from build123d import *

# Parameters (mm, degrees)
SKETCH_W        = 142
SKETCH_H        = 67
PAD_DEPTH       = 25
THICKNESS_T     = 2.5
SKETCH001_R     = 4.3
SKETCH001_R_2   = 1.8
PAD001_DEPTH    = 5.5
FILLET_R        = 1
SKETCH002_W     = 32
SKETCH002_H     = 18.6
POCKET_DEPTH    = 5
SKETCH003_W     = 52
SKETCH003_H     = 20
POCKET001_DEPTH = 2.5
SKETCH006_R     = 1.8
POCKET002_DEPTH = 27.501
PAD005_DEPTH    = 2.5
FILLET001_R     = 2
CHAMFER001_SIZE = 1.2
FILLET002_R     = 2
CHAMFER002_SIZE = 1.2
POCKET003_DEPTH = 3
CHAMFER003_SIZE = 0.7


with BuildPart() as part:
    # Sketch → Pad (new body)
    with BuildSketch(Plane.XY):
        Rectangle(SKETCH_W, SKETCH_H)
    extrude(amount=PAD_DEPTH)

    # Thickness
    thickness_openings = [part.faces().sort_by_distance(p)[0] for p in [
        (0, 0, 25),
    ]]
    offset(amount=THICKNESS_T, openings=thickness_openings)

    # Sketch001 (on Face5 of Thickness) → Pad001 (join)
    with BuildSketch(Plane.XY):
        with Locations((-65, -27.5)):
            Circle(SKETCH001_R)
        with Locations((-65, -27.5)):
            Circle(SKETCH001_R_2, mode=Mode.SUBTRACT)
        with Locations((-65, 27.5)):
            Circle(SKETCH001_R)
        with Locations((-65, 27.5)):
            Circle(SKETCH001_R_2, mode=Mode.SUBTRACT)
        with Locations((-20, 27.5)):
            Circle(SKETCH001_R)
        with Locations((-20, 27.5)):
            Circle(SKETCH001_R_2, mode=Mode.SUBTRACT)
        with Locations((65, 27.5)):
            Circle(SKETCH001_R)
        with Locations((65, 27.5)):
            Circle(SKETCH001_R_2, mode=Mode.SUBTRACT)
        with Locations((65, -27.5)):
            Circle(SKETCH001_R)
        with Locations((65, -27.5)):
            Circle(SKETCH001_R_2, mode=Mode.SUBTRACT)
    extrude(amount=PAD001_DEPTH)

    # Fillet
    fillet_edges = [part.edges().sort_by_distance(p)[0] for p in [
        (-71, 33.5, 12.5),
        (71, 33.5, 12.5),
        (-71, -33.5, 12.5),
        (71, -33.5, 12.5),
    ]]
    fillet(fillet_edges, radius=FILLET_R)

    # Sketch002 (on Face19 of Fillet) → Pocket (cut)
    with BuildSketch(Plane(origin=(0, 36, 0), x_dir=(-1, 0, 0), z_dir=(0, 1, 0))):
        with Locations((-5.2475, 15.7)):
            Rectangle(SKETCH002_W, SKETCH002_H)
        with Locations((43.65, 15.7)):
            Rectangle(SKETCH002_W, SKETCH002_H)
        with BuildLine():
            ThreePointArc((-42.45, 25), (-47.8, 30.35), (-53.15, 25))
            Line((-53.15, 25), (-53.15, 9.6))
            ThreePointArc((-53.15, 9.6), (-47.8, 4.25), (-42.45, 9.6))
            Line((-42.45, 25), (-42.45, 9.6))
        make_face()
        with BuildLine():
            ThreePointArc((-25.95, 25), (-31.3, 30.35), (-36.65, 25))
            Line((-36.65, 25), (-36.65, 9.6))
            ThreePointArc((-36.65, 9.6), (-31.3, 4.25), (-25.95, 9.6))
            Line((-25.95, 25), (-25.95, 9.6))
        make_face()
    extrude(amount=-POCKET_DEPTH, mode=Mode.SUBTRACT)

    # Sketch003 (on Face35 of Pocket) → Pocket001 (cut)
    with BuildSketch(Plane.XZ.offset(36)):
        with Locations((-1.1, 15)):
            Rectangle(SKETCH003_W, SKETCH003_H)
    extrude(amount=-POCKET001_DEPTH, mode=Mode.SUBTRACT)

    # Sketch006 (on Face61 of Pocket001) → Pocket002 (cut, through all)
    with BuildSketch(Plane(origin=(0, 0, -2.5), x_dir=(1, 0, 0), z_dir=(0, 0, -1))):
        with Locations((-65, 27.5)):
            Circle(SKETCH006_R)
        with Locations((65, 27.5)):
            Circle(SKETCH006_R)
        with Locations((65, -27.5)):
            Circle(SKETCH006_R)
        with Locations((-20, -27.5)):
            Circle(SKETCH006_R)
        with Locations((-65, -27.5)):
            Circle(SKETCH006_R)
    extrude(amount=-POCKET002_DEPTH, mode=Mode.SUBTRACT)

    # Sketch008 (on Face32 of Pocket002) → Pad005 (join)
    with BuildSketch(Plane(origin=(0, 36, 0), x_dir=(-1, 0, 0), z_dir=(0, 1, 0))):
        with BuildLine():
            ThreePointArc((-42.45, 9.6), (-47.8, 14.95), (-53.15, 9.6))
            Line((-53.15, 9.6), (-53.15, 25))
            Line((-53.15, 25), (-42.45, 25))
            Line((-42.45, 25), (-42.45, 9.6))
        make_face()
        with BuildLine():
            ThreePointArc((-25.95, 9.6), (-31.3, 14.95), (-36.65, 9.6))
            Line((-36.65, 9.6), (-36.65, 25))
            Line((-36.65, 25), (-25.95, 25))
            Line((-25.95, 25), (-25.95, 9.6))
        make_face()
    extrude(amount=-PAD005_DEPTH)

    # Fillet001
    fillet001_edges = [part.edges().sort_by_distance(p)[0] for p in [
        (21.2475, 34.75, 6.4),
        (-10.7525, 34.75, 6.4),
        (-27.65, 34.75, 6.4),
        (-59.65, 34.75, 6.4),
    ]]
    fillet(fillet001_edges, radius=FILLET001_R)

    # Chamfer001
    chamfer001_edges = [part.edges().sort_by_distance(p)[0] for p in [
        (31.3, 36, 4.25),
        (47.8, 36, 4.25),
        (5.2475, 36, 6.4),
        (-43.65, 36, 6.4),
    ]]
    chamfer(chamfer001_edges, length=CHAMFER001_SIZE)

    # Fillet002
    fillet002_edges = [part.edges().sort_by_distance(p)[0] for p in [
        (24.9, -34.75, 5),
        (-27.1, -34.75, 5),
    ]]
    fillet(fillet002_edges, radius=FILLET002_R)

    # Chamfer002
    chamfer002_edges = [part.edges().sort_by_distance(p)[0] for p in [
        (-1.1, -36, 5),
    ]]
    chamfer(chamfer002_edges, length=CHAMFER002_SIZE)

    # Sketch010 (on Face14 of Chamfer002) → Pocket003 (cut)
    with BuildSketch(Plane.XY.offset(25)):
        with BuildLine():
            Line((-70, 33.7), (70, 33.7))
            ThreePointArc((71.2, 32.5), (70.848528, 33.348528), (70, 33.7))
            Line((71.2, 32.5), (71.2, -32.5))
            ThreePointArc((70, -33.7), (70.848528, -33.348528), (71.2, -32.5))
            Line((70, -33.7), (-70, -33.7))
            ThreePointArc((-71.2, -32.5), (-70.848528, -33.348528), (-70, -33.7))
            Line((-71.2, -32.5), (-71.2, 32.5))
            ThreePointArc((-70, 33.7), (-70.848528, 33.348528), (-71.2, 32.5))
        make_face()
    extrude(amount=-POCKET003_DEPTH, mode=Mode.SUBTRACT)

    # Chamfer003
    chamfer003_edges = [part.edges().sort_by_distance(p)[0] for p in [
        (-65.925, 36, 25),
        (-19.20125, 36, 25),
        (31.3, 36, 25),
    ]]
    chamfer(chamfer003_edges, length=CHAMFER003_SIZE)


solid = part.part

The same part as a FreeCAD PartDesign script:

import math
import FreeCAD as App
import Part
import Sketcher

V = App.Vector
Q = App.Units.Quantity


def edges_at(feature, points):
    """Names of the edges that pass closest to the given points."""
    edges = feature.Shape.Edges
    near = lambda p: min(range(len(edges)), key=lambda i: edges[i].distToShape(Part.Vertex(*p))[0])
    return sorted({f"Edge{near(p) + 1}" for p in points})


def faces_at(feature, points):
    """Names of the faces that lie closest to the given points."""
    faces = feature.Shape.Faces
    near = lambda p: min(range(len(faces)), key=lambda i: faces[i].distToShape(Part.Vertex(*p))[0])
    return sorted({f"Face{near(p) + 1}" for p in points})


def add_polygon(sketch, points):
    """Adds a closed chain of lines whose ends are joined by coincident constraints."""
    first, n = sketch.GeometryCount, len(points)
    for a, b in zip(points, points[1:] + points[:1]):
        sketch.addGeometry(Part.LineSegment(App.Vector(*a, 0), App.Vector(*b, 0)), False)
    for i in range(n):
        sketch.addConstraint(Sketcher.Constraint("Coincident", first + i, 2, first + (i + 1) % n, 1))

doc = App.newDocument("Part")
body = doc.addObject("PartDesign::Body", "Body")

sketch1 = doc.addObject("Sketcher::SketchObject", "Sketch")
body.addObject(sketch1)
sketch1.AttachmentSupport = (doc.XY_Plane, [""])
sketch1.MapMode = "FlatFace"
add_polygon(sketch1, [(-71, 34), (-71, -34), (71, -34), (71, 34)])
sketch1.addConstraint(Sketcher.Constraint("Vertical", 0))
sketch1.addConstraint(Sketcher.Constraint("Horizontal", 1))
sketch1.addConstraint(Sketcher.Constraint("Vertical", 2))
sketch1.addConstraint(Sketcher.Constraint("Horizontal", 3))
sketch1.addConstraint(Sketcher.Constraint("Symmetric", 0, 2, 2, 2, -1, 1))
sketch1.addConstraint(Sketcher.Constraint("DistanceX", 1, 1, 1, 2, Q("142 mm")))
sketch1.addConstraint(Sketcher.Constraint("DistanceY", 0, 2, 0, 1, Q("67 mm")))
pad1 = doc.addObject("PartDesign::Pad", "Pad")
body.addObject(pad1)
pad1.Profile = sketch1
pad1.Length = 25
doc.recompute()

thickness = doc.addObject("PartDesign::Thickness", "Thickness")
body.addObject(thickness)
thickness.Base = (pad1, faces_at(pad1, [(0, 0, 25)]))
thickness.Value = 2.5
thickness.Reversed = False
thickness.Join = "Arc"

sketch2 = doc.addObject("Sketcher::SketchObject", "Sketch001")
body.addObject(sketch2)
sketch2.AttachmentSupport = (doc.XY_Plane, [""])
sketch2.MapMode = "FlatFace"
sketch2.addGeometry(Part.Circle(V(-65, -27.5, 0), V(0, 0, 1), 4.3), False)
sketch2.addGeometry(Part.Circle(V(-65, -27.5, 0), V(0, 0, 1), 1.8), False)
sketch2.addGeometry(Part.Circle(V(-65, 27.5, 0), V(0, 0, 1), 4.3), False)
sketch2.addGeometry(Part.Circle(V(-65, 27.5, 0), V(0, 0, 1), 1.8), False)
sketch2.addGeometry(Part.Circle(V(-20, 27.5, 0), V(0, 0, 1), 4.3), False)
sketch2.addGeometry(Part.Circle(V(-20, 27.5, 0), V(0, 0, 1), 1.8), False)
sketch2.addGeometry(Part.Circle(V(65, 27.5, 0), V(0, 0, 1), 4.3), False)
sketch2.addGeometry(Part.Circle(V(65, 27.5, 0), V(0, 0, 1), 1.8), False)
sketch2.addGeometry(Part.Circle(V(65, -27.5, 0), V(0, 0, 1), 4.3), False)
sketch2.addGeometry(Part.Circle(V(65, -27.5, 0), V(0, 0, 1), 1.8), False)
sketch2.addConstraint(Sketcher.Constraint("Coincident", 1, 3, 0, 3))
sketch2.addConstraint(Sketcher.Constraint("Coincident", 3, 3, 2, 3))
sketch2.addConstraint(Sketcher.Constraint("Coincident", 5, 3, 4, 3))
sketch2.addConstraint(Sketcher.Constraint("Coincident", 7, 3, 6, 3))
sketch2.addConstraint(Sketcher.Constraint("Coincident", 9, 3, 8, 3))
sketch2.addConstraint(Sketcher.Constraint("Equal", 0, 2))
sketch2.addConstraint(Sketcher.Constraint("Equal", 1, 3))
sketch2.addConstraint(Sketcher.Constraint("Equal", 2, 4))
sketch2.addConstraint(Sketcher.Constraint("Equal", 3, 5))
sketch2.addConstraint(Sketcher.Constraint("Equal", 4, 6))
sketch2.addConstraint(Sketcher.Constraint("Equal", 5, 7))
sketch2.addConstraint(Sketcher.Constraint("Equal", 6, 8))
sketch2.addConstraint(Sketcher.Constraint("Equal", 7, 9))
sketch2.addConstraint(Sketcher.Constraint("Symmetric", 0, 3, 6, 3, -1, 1))
sketch2.addConstraint(Sketcher.Constraint("Symmetric", 2, 3, 8, 3, -1, 1))
sketch2.addConstraint(Sketcher.Constraint("Symmetric", 2, 3, 6, 3, -2))
sketch2.addConstraint(Sketcher.Constraint("Horizontal", 3, 3, 4, 3))
sketch2.addConstraint(Sketcher.Constraint("Diameter", 0, Q("8.6 mm")))
sketch2.addConstraint(Sketcher.Constraint("Diameter", 1, Q("3.6 mm")))
sketch2.addConstraint(Sketcher.Constraint("DistanceX", 0, 3, -1, 1, Q("65 mm")))
sketch2.addConstraint(Sketcher.Constraint("DistanceX", 4, 3, -1, 1, Q("20 mm")))
sketch2.addConstraint(Sketcher.Constraint("DistanceY", 0, 3, 2, 3, Q("55 mm")))
pad2 = doc.addObject("PartDesign::Pad", "Pad001")
body.addObject(pad2)
pad2.Profile = sketch2
pad2.Length = 5.5
doc.recompute()

fillet = doc.addObject("PartDesign::Fillet", "Fillet")
body.addObject(fillet)
fillet.Base = (pad2, edges_at(pad2, [
    (-71, 33.5, 12.5),
    (71, 33.5, 12.5),
    (-71, -33.5, 12.5),
    (71, -33.5, 12.5),
]))
fillet.Radius = 1

sketch3 = doc.addObject("Sketcher::SketchObject", "Sketch002")
body.addObject(sketch3)
sketch3.AttachmentSupport = (doc.XZ_Plane, [""])
sketch3.MapMode = "FlatFace"
sketch3.AttachmentOffset = App.Placement(V(0, 0, -36), App.Rotation())
add_polygon(sketch3, [(21, 25), (21, 6), (-11, 6), (-11, 25)])
add_polygon(sketch3, [(-28, 25), (-28, 6), (-60, 6), (-60, 25)])
sketch3.addGeometry(Part.ArcOfCircle(Part.Circle(V(48, 25, 0), V(0, 0, 1), 5), math.radians(0), math.radians(180)), False)
sketch3.addGeometry(Part.LineSegment(V(53, 25, 0), V(53, 10, 0)), False)
sketch3.addGeometry(Part.ArcOfCircle(Part.Circle(V(48, 10, 0), V(0, 0, 1), 5), math.radians(180), math.radians(360)), False)
sketch3.addGeometry(Part.LineSegment(V(42, 10, 0), V(42, 25, 0)), False)
sketch3.addGeometry(Part.ArcOfCircle(Part.Circle(V(31, 25, 0), V(0, 0, 1), 5), math.radians(0), math.radians(180)), False)
sketch3.addGeometry(Part.LineSegment(V(37, 25, 0), V(37, 10, 0)), False)
sketch3.addGeometry(Part.ArcOfCircle(Part.Circle(V(31, 10, 0), V(0, 0, 1), 5), math.radians(180), math.radians(360)), False)
sketch3.addGeometry(Part.LineSegment(V(26, 10, 0), V(26, 25, 0)), False)
sketch3.addConstraint(Sketcher.Constraint("Tangent", 8, 1, 9, 1))
sketch3.addConstraint(Sketcher.Constraint("Tangent", 9, 2, 10, 2))
sketch3.addConstraint(Sketcher.Constraint("Tangent", 10, 1, 11, 1))
sketch3.addConstraint(Sketcher.Constraint("Tangent", 11, 2, 8, 2))
sketch3.addConstraint(Sketcher.Constraint("Tangent", 12, 1, 13, 1))
sketch3.addConstraint(Sketcher.Constraint("Tangent", 13, 2, 14, 2))
sketch3.addConstraint(Sketcher.Constraint("Tangent", 14, 1, 15, 1))
sketch3.addConstraint(Sketcher.Constraint("Tangent", 15, 2, 12, 2))
sketch3.addConstraint(Sketcher.Constraint("Vertical", 0))
sketch3.addConstraint(Sketcher.Constraint("Horizontal", 1))
sketch3.addConstraint(Sketcher.Constraint("Vertical", 2))
sketch3.addConstraint(Sketcher.Constraint("Horizontal", 3))
sketch3.addConstraint(Sketcher.Constraint("Vertical", 4))
sketch3.addConstraint(Sketcher.Constraint("Horizontal", 5))
sketch3.addConstraint(Sketcher.Constraint("Vertical", 6))
sketch3.addConstraint(Sketcher.Constraint("Horizontal", 7))
sketch3.addConstraint(Sketcher.Constraint("Vertical", 9))
sketch3.addConstraint(Sketcher.Constraint("Vertical", 11))
sketch3.addConstraint(Sketcher.Constraint("Vertical", 13))
sketch3.addConstraint(Sketcher.Constraint("Vertical", 15))
sketch3.addConstraint(Sketcher.Constraint("Equal", 10, 12))
sketch3.addConstraint(Sketcher.Constraint("Horizontal", 8, 3, 12, 3))
sketch3.addConstraint(Sketcher.Constraint("Horizontal", 10, 3, 14, 3))
sketch3.addConstraint(Sketcher.Constraint("Horizontal", 12, 3, 2, 2))
sketch3.addConstraint(Sketcher.Constraint("Horizontal", 1, 2, 4, 2))
sketch3.addConstraint(Sketcher.Constraint("Horizontal", 3, 2, 6, 2))
sketch3.addConstraint(Sketcher.Constraint("Equal", 3, 5))
sketch3.addConstraint(Sketcher.Constraint("DistanceX", 1, 2, 1, 1, Q("32 mm")))
sketch3.addConstraint(Sketcher.Constraint("Radius", 8, Q("5.35 mm")))
sketch3.addConstraint(Sketcher.Constraint("DistanceY", 0, 2, 0, 1, Q("18.6 mm")))
sketch3.addConstraint(Sketcher.Constraint("DistanceY", 9, 2, 9, 1, Q("15.4 mm")))
sketch3.addConstraint(Sketcher.Constraint("DistanceY", -1, 1, 8, 3, Q("25 mm")))
sketch3.addConstraint(Sketcher.Constraint("DistanceX", -1, 1, 8, 3, Q("47.8 mm")))
sketch3.addConstraint(Sketcher.Constraint("DistanceX", -1, 1, 12, 3, Q("31.3 mm")))
sketch3.addConstraint(Sketcher.Constraint("DistanceX", 4, 2, -1, 1, Q("27.65 mm")))
sketch3.addConstraint(Sketcher.Constraint("DistanceX", -1, 1, 0, 2, Q("21.2475 mm")))
pocket1 = doc.addObject("PartDesign::Pocket", "Pocket")
body.addObject(pocket1)
pocket1.Profile = sketch3
pocket1.Length = 5
pocket1.Reversed = True

sketch4 = doc.addObject("Sketcher::SketchObject", "Sketch003")
body.addObject(sketch4)
sketch4.AttachmentSupport = (doc.XZ_Plane, [""])
sketch4.MapMode = "FlatFace"
sketch4.AttachmentOffset = App.Placement(V(0, 0, 36), App.Rotation())
add_polygon(sketch4, [(-27, 25), (-27, 5), (25, 5), (25, 25)])
sketch4.addConstraint(Sketcher.Constraint("Vertical", 0))
sketch4.addConstraint(Sketcher.Constraint("Horizontal", 1))
sketch4.addConstraint(Sketcher.Constraint("Vertical", 2))
sketch4.addConstraint(Sketcher.Constraint("Horizontal", 3))
sketch4.addConstraint(Sketcher.Constraint("DistanceX", 1, 1, 1, 2, Q("52 mm")))
sketch4.addConstraint(Sketcher.Constraint("DistanceY", 0, 2, 0, 1, Q("20 mm")))
sketch4.addConstraint(Sketcher.Constraint("DistanceY", -1, 1, 0, 2, Q("5 mm")))
sketch4.addConstraint(Sketcher.Constraint("DistanceX", 0, 2, -1, 1, Q("27.1 mm")))
pocket2 = doc.addObject("PartDesign::Pocket", "Pocket001")
body.addObject(pocket2)
pocket2.Profile = sketch4
pocket2.Length = 2.5

sketch5 = doc.addObject("Sketcher::SketchObject", "Sketch004")
body.addObject(sketch5)
sketch5.AttachmentSupport = (doc.XY_Plane, [""])
sketch5.MapMode = "FlatFace"
sketch5.AttachmentOffset = App.Placement(V(0, 0, -2.5), App.Rotation())
sketch5.addGeometry(Part.Circle(V(-65, -27.5, 0), V(0, 0, 1), 1.8), False)
sketch5.addGeometry(Part.Circle(V(65, -27.5, 0), V(0, 0, 1), 1.8), False)
sketch5.addGeometry(Part.Circle(V(65, 27.5, 0), V(0, 0, 1), 1.8), False)
sketch5.addGeometry(Part.Circle(V(-20, 27.5, 0), V(0, 0, 1), 1.8), False)
sketch5.addGeometry(Part.Circle(V(-65, 27.5, 0), V(0, 0, 1), 1.8), False)
sketch5.addConstraint(Sketcher.Constraint("Equal", 0, 1))
sketch5.addConstraint(Sketcher.Constraint("Equal", 1, 2))
sketch5.addConstraint(Sketcher.Constraint("Equal", 2, 3))
sketch5.addConstraint(Sketcher.Constraint("Equal", 3, 4))
sketch5.addConstraint(Sketcher.Constraint("Symmetric", 0, 3, 2, 3, -1, 1))
sketch5.addConstraint(Sketcher.Constraint("Symmetric", 1, 3, 4, 3, -1, 1))
sketch5.addConstraint(Sketcher.Constraint("Symmetric", 0, 3, 1, 3, -2))
sketch5.addConstraint(Sketcher.Constraint("Horizontal", 2, 3, 3, 3))
sketch5.addConstraint(Sketcher.Constraint("Diameter", 0, Q("3.6 mm")))
sketch5.addConstraint(Sketcher.Constraint("DistanceX", 0, 3, -1, 1, Q("65 mm")))
sketch5.addConstraint(Sketcher.Constraint("DistanceX", 3, 3, -1, 1, Q("20 mm")))
sketch5.addConstraint(Sketcher.Constraint("DistanceY", 1, 3, 2, 3, Q("55 mm")))
pocket3 = doc.addObject("PartDesign::Pocket", "Pocket002")
body.addObject(pocket3)
pocket3.Profile = sketch5
pocket3.Type = "ThroughAll"
pocket3.Reversed = True

sketch6 = doc.addObject("Sketcher::SketchObject", "Sketch005")
body.addObject(sketch6)
sketch6.AttachmentSupport = (doc.XZ_Plane, [""])
sketch6.MapMode = "FlatFace"
sketch6.AttachmentOffset = App.Placement(V(0, 0, -36), App.Rotation())
sketch6.addGeometry(Part.ArcOfCircle(Part.Circle(V(48, 10, 0), V(0, 0, 1), 5), math.radians(0), math.radians(180)), False)
sketch6.addGeometry(Part.LineSegment(V(42, 10, 0), V(42, 25, 0)), False)
sketch6.addGeometry(Part.LineSegment(V(42, 25, 0), V(53, 25, 0)), False)
sketch6.addGeometry(Part.LineSegment(V(53, 25, 0), V(53, 10, 0)), False)
sketch6.addGeometry(Part.ArcOfCircle(Part.Circle(V(31, 10, 0), V(0, 0, 1), 5), math.radians(0), math.radians(180)), False)
sketch6.addGeometry(Part.LineSegment(V(26, 10, 0), V(26, 25, 0)), False)
sketch6.addGeometry(Part.LineSegment(V(26, 25, 0), V(37, 25, 0)), False)
sketch6.addGeometry(Part.LineSegment(V(37, 25, 0), V(37, 10, 0)), False)
sketch6.addConstraint(Sketcher.Constraint("Tangent", 0, 2, 1, 1))
sketch6.addConstraint(Sketcher.Constraint("Coincident", 1, 2, 2, 1))
sketch6.addConstraint(Sketcher.Constraint("Coincident", 2, 2, 3, 1))
sketch6.addConstraint(Sketcher.Constraint("Tangent", 3, 2, 0, 1))
sketch6.addConstraint(Sketcher.Constraint("Tangent", 4, 2, 5, 1))
sketch6.addConstraint(Sketcher.Constraint("Coincident", 5, 2, 6, 1))
sketch6.addConstraint(Sketcher.Constraint("Coincident", 6, 2, 7, 1))
sketch6.addConstraint(Sketcher.Constraint("Tangent", 7, 2, 4, 1))
sketch6.addConstraint(Sketcher.Constraint("Vertical", 1))
sketch6.addConstraint(Sketcher.Constraint("Horizontal", 2))
sketch6.addConstraint(Sketcher.Constraint("Vertical", 3))
sketch6.addConstraint(Sketcher.Constraint("Vertical", 5))
sketch6.addConstraint(Sketcher.Constraint("Horizontal", 6))
sketch6.addConstraint(Sketcher.Constraint("Vertical", 7))
sketch6.addConstraint(Sketcher.Constraint("Equal", 0, 4))
sketch6.addConstraint(Sketcher.Constraint("Horizontal", 0, 3, 4, 3))
sketch6.addConstraint(Sketcher.Constraint("Horizontal", 2, 2, 5, 2))
sketch6.addConstraint(Sketcher.Constraint("Radius", 0, Q("5.35 mm")))
sketch6.addConstraint(Sketcher.Constraint("DistanceY", 1, 1, 1, 2, Q("15.4 mm")))
sketch6.addConstraint(Sketcher.Constraint("DistanceY", -1, 1, 1, 2, Q("25 mm")))
sketch6.addConstraint(Sketcher.Constraint("DistanceX", -1, 1, 0, 3, Q("47.8 mm")))
sketch6.addConstraint(Sketcher.Constraint("DistanceX", -1, 1, 4, 3, Q("31.3 mm")))
pad3 = doc.addObject("PartDesign::Pad", "Pad002")
body.addObject(pad3)
pad3.Profile = sketch6
pad3.Length = 2.5
doc.recompute()

fillet2 = doc.addObject("PartDesign::Fillet", "Fillet001")
body.addObject(fillet2)
fillet2.Base = (pad3, edges_at(pad3, [
    (21.247, 34.75, 6.4),
    (-10.752, 34.75, 6.4),
    (-27.65, 34.75, 6.4),
    (-59.65, 34.75, 6.4),
]))
fillet2.Radius = 2
doc.recompute()

chamfer = doc.addObject("PartDesign::Chamfer", "Chamfer")
body.addObject(chamfer)
chamfer.Base = (fillet2, edges_at(fillet2, [
    (25.95, 36, 9.6),
    (53.15, 36, 9.6),
    (5.247, 36, 6.4),
    (-43.65, 36, 6.4),
]))
chamfer.Size = 1.2
doc.recompute()

fillet3 = doc.addObject("PartDesign::Fillet", "Fillet002")
body.addObject(fillet3)
fillet3.Base = (chamfer, edges_at(chamfer, [(24.9, -34.75, 5), (-27.1, -34.75, 5)]))
fillet3.Radius = 2
doc.recompute()

chamfer2 = doc.addObject("PartDesign::Chamfer", "Chamfer001")
body.addObject(chamfer2)
chamfer2.Base = (fillet3, edges_at(fillet3, [(-1.1, -36, 5)]))
chamfer2.Size = 1.2

sketch7 = doc.addObject("Sketcher::SketchObject", "Sketch006")
body.addObject(sketch7)
sketch7.AttachmentSupport = (doc.XY_Plane, [""])
sketch7.MapMode = "FlatFace"
sketch7.AttachmentOffset = App.Placement(V(0, 0, 25), App.Rotation())
sketch7.addGeometry(Part.LineSegment(V(70, 33.7, 0), V(-70, 33.7, 0)), False)
sketch7.addGeometry(Part.ArcOfCircle(Part.Circle(V(-70, 32.5, 0), V(0, 0, 1), 1.2), math.radians(90), math.radians(180)), False)
sketch7.addGeometry(Part.LineSegment(V(-71.2, 32.5, 0), V(-71.2, -32.5, 0)), False)
sketch7.addGeometry(Part.ArcOfCircle(Part.Circle(V(-70, -32.5, 0), V(0, 0, 1), 1.2), math.radians(-180), math.radians(-90)), False)
sketch7.addGeometry(Part.LineSegment(V(-70, -33.7, 0), V(70, -33.7, 0)), False)
sketch7.addGeometry(Part.ArcOfCircle(Part.Circle(V(70, -32.5, 0), V(0, 0, 1), 1.2), math.radians(-90), math.radians(0)), False)
sketch7.addGeometry(Part.LineSegment(V(71.2, -32.5, 0), V(71.2, 32.5, 0)), False)
sketch7.addGeometry(Part.ArcOfCircle(Part.Circle(V(70, 32.5, 0), V(0, 0, 1), 1.2), math.radians(0), math.radians(90)), False)
sketch7.addConstraint(Sketcher.Constraint("Tangent", 0, 2, 1, 1))
sketch7.addConstraint(Sketcher.Constraint("Tangent", 1, 2, 2, 1))
sketch7.addConstraint(Sketcher.Constraint("Tangent", 2, 2, 3, 1))
sketch7.addConstraint(Sketcher.Constraint("Tangent", 3, 2, 4, 1))
sketch7.addConstraint(Sketcher.Constraint("Tangent", 4, 2, 5, 1))
sketch7.addConstraint(Sketcher.Constraint("Tangent", 5, 2, 6, 1))
sketch7.addConstraint(Sketcher.Constraint("Tangent", 6, 2, 7, 1))
sketch7.addConstraint(Sketcher.Constraint("Tangent", 7, 2, 0, 1))
sketch7.addConstraint(Sketcher.Constraint("Horizontal", 0))
sketch7.addConstraint(Sketcher.Constraint("Vertical", 2))
sketch7.addConstraint(Sketcher.Constraint("Horizontal", 4))
sketch7.addConstraint(Sketcher.Constraint("Vertical", 6))
sketch7.addConstraint(Sketcher.Constraint("Equal", 1, 3))
sketch7.addConstraint(Sketcher.Constraint("Equal", 3, 5))
sketch7.addConstraint(Sketcher.Constraint("Equal", 5, 7))
sketch7.addConstraint(Sketcher.Constraint("Symmetric", 1, 3, 5, 3, -1, 1))
sketch7.addConstraint(Sketcher.Constraint("Radius", 1, Q("1.2 mm")))
sketch7.addConstraint(Sketcher.Constraint("DistanceX", 0, 2, 0, 1, Q("140 mm")))
sketch7.addConstraint(Sketcher.Constraint("DistanceY", 2, 2, 2, 1, Q("65 mm")))
pocket4 = doc.addObject("PartDesign::Pocket", "Pocket003")
body.addObject(pocket4)
pocket4.Profile = sketch7
pocket4.Length = 3
doc.recompute()

chamfer3 = doc.addObject("PartDesign::Chamfer", "Chamfer002")
body.addObject(chamfer3)
chamfer3.Base = (pocket4, edges_at(pocket4, [(-65.925, 36, 25), (-19.201, 36, 25), (46.724, 36, 25)]))
chamfer3.Size = 0.7

doc.recompute()
